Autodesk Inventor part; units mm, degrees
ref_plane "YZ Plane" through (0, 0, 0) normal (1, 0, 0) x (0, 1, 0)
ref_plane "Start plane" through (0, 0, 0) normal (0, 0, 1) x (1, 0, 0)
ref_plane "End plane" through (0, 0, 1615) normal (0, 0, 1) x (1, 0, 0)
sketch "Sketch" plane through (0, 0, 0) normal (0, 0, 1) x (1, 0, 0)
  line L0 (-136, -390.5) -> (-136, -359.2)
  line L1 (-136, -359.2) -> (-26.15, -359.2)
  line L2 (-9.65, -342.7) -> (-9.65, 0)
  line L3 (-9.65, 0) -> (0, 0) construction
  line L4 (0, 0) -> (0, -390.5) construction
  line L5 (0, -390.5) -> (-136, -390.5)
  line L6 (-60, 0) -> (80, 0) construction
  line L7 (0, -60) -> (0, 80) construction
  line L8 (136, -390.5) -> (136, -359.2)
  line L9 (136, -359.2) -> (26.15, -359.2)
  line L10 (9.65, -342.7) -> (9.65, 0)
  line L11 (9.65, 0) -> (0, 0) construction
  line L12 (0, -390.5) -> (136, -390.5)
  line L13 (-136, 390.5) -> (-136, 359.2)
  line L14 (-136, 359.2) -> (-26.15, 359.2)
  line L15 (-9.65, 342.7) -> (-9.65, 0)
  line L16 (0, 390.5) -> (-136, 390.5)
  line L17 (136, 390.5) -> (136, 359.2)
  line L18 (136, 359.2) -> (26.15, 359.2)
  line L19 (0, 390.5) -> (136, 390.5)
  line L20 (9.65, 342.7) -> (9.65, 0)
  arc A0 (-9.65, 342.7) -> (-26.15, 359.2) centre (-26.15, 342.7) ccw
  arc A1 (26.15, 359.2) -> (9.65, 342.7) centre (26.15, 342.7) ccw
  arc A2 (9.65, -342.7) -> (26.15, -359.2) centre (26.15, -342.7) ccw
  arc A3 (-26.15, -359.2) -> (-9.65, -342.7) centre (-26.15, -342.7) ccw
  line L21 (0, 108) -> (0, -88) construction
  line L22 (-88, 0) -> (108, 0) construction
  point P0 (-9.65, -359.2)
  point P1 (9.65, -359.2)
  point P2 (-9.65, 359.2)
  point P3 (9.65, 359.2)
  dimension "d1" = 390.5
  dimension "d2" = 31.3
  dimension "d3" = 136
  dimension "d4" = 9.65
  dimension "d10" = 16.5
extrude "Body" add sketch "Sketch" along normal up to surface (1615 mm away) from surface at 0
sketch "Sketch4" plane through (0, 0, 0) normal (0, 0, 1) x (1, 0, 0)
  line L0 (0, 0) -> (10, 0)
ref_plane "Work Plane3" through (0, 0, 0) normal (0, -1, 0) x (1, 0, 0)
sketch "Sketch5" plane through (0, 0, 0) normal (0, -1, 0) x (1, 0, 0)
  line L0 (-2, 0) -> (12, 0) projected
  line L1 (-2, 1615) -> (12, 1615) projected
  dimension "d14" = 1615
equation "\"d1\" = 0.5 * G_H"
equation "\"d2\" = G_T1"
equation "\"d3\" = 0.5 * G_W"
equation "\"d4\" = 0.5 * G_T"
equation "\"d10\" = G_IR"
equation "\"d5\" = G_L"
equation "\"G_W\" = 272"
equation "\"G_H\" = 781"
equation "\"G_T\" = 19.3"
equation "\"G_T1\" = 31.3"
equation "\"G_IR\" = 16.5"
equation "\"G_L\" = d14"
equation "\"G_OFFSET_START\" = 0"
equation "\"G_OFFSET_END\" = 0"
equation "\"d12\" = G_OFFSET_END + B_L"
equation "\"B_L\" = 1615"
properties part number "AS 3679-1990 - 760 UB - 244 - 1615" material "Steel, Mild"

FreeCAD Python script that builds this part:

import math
import FreeCAD as App
import Part
import Sketcher
Q = App.Units.Quantity

doc = App.newDocument("Part")
body = doc.addObject("PartDesign::Body", "Body")

sketch1 = body.newObject("Sketcher::SketchObject", "Sketch")
sketch1.AttachmentSupport = (doc.getObject("XY_Plane"), [""])
sketch1.MapMode = "FlatFace"
sketch1.addGeometry([
    Part.LineSegment(App.Vector(-136, -359, 0), App.Vector(-136, -390, 0)),
    Part.LineSegment(App.Vector(-136, -390, 0), App.Vector(136, -390, 0)),
    Part.LineSegment(App.Vector(136, -390, 0), App.Vector(136, -359, 0)),
    Part.LineSegment(App.Vector(136, -359, 0), App.Vector(26, -359, 0)),
    Part.ArcOfCircle(Part.Circle(App.Vector(26, -343, 0), App.Vector(0, 0, 1), 16), math.radians(180), math.radians(270)),
    Part.LineSegment(App.Vector(10, -343, 0), App.Vector(10, 343, 0)),
    Part.ArcOfCircle(Part.Circle(App.Vector(26, 343, 0), App.Vector(0, 0, 1), 16), math.radians(90), math.radians(180)),
    Part.LineSegment(App.Vector(26, 359, 0), App.Vector(136, 359, 0)),
    Part.LineSegment(App.Vector(136, 359, 0), App.Vector(136, 390, 0)),
    Part.LineSegment(App.Vector(136, 390, 0), App.Vector(-136, 390, 0)),
    Part.LineSegment(App.Vector(-136, 390, 0), App.Vector(-136, 359, 0)),
    Part.LineSegment(App.Vector(-136, 359, 0), App.Vector(-26, 359, 0)),
    Part.ArcOfCircle(Part.Circle(App.Vector(-26, 343, 0), App.Vector(0, 0, 1), 16), math.radians(0), math.radians(90)),
    Part.LineSegment(App.Vector(-10, 343, 0), App.Vector(-10, -343, 0)),
    Part.ArcOfCircle(Part.Circle(App.Vector(-26, -343, 0), App.Vector(0, 0, 1), 16), math.radians(-90), math.radians(0)),
    Part.LineSegment(App.Vector(-26, -359, 0), App.Vector(-136, -359, 0)),
], False)
sketch1.addConstraint([
    Sketcher.Constraint("Coincident", 0, 2, 1, 1),
    Sketcher.Constraint("Coincident", 1, 2, 2, 1),
    Sketcher.Constraint("Coincident", 2, 2, 3, 1),
    Sketcher.Constraint("Tangent", 3, 2, 4, 2),
    Sketcher.Constraint("Tangent", 4, 1, 5, 1),
    Sketcher.Constraint("Tangent", 5, 2, 6, 2),
    Sketcher.Constraint("Tangent", 6, 1, 7, 1),
    Sketcher.Constraint("Coincident", 7, 2, 8, 1),
    Sketcher.Constraint("Coincident", 8, 2, 9, 1),
    Sketcher.Constraint("Coincident", 9, 2, 10, 1),
    Sketcher.Constraint("Coincident", 10, 2, 11, 1),
    Sketcher.Constraint("Tangent", 11, 2, 12, 2),
    Sketcher.Constraint("Tangent", 12, 1, 13, 1),
    Sketcher.Constraint("Tangent", 13, 2, 14, 2),
    Sketcher.Constraint("Tangent", 14, 1, 15, 1),
    Sketcher.Constraint("Coincident", 15, 2, 0, 1),
    Sketcher.Constraint("Vertical", 0),
    Sketcher.Constraint("Horizontal", 1),
    Sketcher.Constraint("Vertical", 2),
    Sketcher.Constraint("Horizontal", 3),
    Sketcher.Constraint("Vertical", 5),
    Sketcher.Constraint("Horizontal", 7),
    Sketcher.Constraint("Vertical", 8),
    Sketcher.Constraint("Horizontal", 9),
    Sketcher.Constraint("Vertical", 10),
    Sketcher.Constraint("Horizontal", 11),
    Sketcher.Constraint("Vertical", 13),
    Sketcher.Constraint("Horizontal", 15),
    Sketcher.Constraint("Equal", 4, 6),
    Sketcher.Constraint("Equal", 6, 12),
    Sketcher.Constraint("Equal", 12, 14),
    Sketcher.Constraint("Symmetric", 4, 3, 12, 3, -1, 1),
    Sketcher.Constraint("Symmetric", 0, 2, 8, 2, -1, 1),
    Sketcher.Constraint("Symmetric", 7, 2, 10, 2, -2),
    Sketcher.Constraint("Symmetric", 2, 2, 15, 2, -2),
    Sketcher.Constraint("Radius", 4, Q("16.5 mm")),
    Sketcher.Constraint("DistanceY", 0, 2, 0, 1, Q("31.3 mm")),
    Sketcher.Constraint("DistanceX", 0, 2, -1, 1, Q("136 mm")),
    Sketcher.Constraint("DistanceY", 0, 2, -1, 1, Q("390.5 mm")),
    Sketcher.Constraint("DistanceX", -1, 1, 4, 1, Q("9.65 mm")),
])
pad1 = body.newObject("PartDesign::Pad", "Pad")
pad1.Profile = sketch1
pad1.Length = 1615

doc.recompute()
